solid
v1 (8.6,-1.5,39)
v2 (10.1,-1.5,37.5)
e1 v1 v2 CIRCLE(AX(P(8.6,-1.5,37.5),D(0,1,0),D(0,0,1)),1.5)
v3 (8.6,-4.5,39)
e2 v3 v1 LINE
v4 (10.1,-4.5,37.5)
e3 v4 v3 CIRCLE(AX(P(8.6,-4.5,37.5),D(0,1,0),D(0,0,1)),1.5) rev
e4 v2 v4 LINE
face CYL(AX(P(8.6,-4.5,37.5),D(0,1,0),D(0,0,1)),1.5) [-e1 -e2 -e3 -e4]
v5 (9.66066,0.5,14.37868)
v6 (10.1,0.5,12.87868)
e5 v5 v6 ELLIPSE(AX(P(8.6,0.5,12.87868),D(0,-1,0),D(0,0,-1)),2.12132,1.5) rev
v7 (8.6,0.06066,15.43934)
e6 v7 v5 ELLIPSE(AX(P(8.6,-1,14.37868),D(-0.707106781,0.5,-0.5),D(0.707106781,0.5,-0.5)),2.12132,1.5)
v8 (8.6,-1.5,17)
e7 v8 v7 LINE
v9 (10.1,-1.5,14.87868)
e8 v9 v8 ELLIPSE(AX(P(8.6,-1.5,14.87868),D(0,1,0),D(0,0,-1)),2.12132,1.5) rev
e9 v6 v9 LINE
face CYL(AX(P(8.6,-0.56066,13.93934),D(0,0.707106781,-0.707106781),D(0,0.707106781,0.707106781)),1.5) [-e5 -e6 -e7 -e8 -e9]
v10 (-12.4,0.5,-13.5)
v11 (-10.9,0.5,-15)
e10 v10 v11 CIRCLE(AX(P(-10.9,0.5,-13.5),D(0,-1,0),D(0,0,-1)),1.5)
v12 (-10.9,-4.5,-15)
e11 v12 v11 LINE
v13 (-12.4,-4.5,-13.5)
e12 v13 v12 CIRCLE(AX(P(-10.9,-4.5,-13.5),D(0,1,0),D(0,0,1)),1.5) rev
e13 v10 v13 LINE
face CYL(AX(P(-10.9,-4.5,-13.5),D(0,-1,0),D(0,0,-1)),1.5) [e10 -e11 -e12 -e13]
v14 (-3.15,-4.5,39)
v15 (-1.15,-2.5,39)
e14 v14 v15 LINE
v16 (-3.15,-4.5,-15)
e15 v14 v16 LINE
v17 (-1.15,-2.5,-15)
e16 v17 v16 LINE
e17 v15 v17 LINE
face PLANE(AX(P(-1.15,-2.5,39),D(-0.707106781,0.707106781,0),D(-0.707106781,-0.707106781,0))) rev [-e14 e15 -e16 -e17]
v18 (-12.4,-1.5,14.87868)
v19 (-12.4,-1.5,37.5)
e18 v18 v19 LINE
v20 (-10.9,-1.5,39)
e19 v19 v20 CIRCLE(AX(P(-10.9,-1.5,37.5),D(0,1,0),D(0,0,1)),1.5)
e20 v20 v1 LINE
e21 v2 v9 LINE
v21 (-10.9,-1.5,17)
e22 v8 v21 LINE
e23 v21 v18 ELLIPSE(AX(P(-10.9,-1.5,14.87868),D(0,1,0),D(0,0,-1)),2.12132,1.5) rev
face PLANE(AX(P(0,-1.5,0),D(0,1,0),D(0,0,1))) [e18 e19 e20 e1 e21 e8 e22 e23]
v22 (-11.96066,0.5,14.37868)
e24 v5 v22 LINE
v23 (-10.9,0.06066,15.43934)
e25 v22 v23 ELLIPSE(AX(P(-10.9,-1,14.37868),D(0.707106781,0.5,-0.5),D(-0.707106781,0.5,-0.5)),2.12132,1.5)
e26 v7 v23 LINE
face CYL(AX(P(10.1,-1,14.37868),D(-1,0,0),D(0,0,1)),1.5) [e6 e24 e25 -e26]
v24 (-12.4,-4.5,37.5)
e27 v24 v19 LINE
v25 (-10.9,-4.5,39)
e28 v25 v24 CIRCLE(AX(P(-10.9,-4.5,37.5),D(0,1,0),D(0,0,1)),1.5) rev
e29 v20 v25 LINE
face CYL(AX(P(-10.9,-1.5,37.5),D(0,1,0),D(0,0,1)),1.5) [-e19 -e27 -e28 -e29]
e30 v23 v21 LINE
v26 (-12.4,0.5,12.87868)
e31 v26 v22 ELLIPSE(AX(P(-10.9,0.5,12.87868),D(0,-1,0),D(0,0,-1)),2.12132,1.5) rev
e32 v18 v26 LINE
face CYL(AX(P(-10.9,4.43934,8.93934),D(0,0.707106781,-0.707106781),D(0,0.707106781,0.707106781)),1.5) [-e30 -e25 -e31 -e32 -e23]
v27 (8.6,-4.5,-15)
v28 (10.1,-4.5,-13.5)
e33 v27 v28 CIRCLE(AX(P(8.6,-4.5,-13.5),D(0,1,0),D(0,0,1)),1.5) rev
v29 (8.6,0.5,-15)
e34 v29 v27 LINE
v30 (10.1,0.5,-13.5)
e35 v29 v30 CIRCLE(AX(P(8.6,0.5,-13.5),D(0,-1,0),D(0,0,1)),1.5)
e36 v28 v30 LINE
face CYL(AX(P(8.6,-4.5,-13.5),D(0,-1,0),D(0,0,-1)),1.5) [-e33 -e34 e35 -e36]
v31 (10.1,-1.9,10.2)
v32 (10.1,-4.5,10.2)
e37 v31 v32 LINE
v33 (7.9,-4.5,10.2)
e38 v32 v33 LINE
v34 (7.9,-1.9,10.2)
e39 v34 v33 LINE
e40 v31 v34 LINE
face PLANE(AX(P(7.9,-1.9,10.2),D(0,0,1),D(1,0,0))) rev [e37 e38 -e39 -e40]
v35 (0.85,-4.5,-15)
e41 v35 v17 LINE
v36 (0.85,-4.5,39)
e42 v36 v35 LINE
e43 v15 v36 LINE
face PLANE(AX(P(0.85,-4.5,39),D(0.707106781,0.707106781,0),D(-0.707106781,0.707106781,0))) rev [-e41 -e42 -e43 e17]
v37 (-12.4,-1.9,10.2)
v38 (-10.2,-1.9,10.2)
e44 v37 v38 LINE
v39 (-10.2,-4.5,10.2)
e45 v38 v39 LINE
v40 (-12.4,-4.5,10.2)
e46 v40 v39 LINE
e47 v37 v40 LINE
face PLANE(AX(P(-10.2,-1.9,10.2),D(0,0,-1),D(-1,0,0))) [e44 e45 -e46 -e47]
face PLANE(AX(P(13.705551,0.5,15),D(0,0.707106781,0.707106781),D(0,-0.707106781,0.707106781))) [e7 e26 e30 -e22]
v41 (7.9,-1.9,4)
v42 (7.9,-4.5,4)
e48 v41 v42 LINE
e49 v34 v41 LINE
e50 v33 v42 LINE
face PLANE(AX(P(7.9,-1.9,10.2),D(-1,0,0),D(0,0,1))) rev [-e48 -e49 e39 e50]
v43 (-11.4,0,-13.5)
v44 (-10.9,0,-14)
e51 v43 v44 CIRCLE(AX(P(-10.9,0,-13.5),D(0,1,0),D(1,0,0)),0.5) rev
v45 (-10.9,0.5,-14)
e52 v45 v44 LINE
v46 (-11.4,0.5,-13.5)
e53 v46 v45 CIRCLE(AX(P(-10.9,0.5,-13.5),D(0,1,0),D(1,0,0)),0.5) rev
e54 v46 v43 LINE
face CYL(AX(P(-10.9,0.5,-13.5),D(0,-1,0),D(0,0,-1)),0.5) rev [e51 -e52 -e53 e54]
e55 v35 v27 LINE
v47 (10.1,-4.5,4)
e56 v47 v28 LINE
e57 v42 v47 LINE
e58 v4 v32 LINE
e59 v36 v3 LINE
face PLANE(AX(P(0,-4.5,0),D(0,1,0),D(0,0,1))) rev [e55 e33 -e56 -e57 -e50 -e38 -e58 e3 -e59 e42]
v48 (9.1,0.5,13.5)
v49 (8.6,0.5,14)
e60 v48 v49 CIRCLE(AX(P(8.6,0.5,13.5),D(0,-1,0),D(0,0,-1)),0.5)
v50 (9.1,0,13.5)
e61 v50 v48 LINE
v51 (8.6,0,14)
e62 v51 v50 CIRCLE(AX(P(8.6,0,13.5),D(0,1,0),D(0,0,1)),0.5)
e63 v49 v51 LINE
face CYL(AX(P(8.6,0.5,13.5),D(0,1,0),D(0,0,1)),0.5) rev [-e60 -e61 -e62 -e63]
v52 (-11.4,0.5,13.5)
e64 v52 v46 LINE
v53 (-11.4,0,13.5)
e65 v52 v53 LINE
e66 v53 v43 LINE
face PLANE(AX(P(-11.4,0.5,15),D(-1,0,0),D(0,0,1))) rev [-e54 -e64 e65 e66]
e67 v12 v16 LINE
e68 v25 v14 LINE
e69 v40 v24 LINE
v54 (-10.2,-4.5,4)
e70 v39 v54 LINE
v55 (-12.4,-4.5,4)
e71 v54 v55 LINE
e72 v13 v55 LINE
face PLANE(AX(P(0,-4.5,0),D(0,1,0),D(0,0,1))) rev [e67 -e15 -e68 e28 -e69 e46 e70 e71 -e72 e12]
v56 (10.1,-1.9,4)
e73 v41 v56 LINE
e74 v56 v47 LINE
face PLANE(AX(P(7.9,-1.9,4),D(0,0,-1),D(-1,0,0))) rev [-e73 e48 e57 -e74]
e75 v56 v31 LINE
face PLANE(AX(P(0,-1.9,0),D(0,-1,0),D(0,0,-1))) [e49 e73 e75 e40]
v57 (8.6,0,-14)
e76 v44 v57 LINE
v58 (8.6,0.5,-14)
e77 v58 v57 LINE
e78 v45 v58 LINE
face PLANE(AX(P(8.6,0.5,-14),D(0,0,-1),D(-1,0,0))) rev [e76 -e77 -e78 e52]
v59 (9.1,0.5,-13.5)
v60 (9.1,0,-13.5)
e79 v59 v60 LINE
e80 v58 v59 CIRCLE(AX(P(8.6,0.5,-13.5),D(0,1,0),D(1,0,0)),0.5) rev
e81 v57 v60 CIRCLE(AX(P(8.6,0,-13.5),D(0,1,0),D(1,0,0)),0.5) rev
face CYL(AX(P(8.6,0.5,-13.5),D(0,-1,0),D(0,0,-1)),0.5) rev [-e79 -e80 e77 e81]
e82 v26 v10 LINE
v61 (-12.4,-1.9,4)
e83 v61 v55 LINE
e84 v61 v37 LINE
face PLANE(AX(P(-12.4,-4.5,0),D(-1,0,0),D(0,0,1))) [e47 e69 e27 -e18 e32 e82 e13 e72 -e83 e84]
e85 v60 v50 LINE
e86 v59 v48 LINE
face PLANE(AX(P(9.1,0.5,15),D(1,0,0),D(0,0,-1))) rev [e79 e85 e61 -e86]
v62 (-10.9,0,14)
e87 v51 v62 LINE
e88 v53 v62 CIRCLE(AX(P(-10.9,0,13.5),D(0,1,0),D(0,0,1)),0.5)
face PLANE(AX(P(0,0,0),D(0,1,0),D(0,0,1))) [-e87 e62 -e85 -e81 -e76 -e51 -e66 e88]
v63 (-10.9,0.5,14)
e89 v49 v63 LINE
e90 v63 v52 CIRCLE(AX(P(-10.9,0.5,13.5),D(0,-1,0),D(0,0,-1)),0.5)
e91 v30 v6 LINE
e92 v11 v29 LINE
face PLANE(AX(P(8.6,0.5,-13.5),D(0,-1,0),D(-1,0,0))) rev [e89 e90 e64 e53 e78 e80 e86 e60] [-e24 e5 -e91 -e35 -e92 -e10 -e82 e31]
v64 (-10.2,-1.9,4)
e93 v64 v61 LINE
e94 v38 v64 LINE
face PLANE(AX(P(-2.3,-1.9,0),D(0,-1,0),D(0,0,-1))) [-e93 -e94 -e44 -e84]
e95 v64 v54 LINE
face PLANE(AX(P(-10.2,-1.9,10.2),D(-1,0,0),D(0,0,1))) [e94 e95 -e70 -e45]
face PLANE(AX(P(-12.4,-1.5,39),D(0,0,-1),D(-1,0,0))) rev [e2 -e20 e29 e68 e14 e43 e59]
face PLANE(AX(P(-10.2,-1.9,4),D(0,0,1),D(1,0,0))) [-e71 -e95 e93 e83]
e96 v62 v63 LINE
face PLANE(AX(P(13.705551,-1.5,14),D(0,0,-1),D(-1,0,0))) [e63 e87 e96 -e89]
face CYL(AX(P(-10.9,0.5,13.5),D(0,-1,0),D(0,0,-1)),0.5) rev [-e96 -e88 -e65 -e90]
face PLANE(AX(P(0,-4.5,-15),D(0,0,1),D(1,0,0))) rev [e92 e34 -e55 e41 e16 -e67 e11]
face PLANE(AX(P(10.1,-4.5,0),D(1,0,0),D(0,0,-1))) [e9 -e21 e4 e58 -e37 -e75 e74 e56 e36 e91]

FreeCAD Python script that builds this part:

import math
import FreeCAD as App
import Part
import Sketcher

V = App.Vector
Q = App.Units.Quantity


def edges_at(feature, points):
    """Names of the edges that pass closest to the given points."""
    edges = feature.Shape.Edges
    near = lambda p: min(range(len(edges)), key=lambda i: edges[i].distToShape(Part.Vertex(*p))[0])
    return sorted({f"Edge{near(p) + 1}" for p in points})


def add_polygon(sketch, points):
    """Adds a closed chain of lines whose ends are joined by coincident constraints."""
    first, n = sketch.GeometryCount, len(points)
    for a, b in zip(points, points[1:] + points[:1]):
        sketch.addGeometry(Part.LineSegment(App.Vector(*a, 0), App.Vector(*b, 0)), False)
    for i in range(n):
        sketch.addConstraint(Sketcher.Constraint("Coincident", first + i, 2, first + (i + 1) % n, 1))

doc = App.newDocument("Part")
body = doc.addObject("PartDesign::Body", "Body")

sketch1 = body.newObject("Sketcher::SketchObject", "Sketch")
sketch1.AttachmentSupport = (doc.getObject("XZ_Plane"), [""])
sketch1.MapMode = "FlatFace"
add_polygon(sketch1, [(-12, -15), (-12, 15), (10, 15), (10, -15)])
sketch1.addConstraint([
    Sketcher.Constraint("Vertical", 0),
    Sketcher.Constraint("Horizontal", 1),
    Sketcher.Constraint("Vertical", 2),
    Sketcher.Constraint("Horizontal", 3),
    Sketcher.Constraint("DistanceY", 0, 1, 0, 2, 30.0),
    Sketcher.Constraint("DistanceX", 1, 1, 1, 2, 22.5),
    Sketcher.Constraint("DistanceY", -1, 1, 0, 2, 15.0),
    Sketcher.Constraint("DistanceX", 0, 2, -1, 1, 12.4),
])
pad1 = body.newObject("PartDesign::Pad", "Pad")
pad1.Profile = sketch1
pad1.Length = 4.5

sketch2 = body.newObject("Sketcher::SketchObject", "Sketch001")
sketch2.AttachmentSupport = (doc.getObject("XZ_Plane"), [""])
sketch2.MapMode = "FlatFace"
sketch2.AttachmentOffset = App.Placement(V(0, 0, 4.5), App.Rotation())
add_polygon(sketch2, [(-12, 15), (-12, 39), (10, 39), (10, 15)])
sketch2.addConstraint([
    Sketcher.Constraint("Vertical", 0),
    Sketcher.Constraint("Horizontal", 1),
    Sketcher.Constraint("Vertical", 2),
    Sketcher.Constraint("Horizontal", 3),
    Sketcher.Constraint("DistanceY", 0, 1, 0, 2, 24.0),
    Sketcher.Constraint("DistanceX", 1, 1, 1, 2, 22.5),
    Sketcher.Constraint("DistanceY", -1, 1, 0, 2, 39.0),
    Sketcher.Constraint("DistanceX", 0, 2, -1, 1, 12.4),
])
pad2 = body.newObject("PartDesign::Pad", "Pad001")
pad2.Profile = sketch2
pad2.Length = 3
pad2.Reversed = True
doc.recompute()

fillet = body.newObject("PartDesign::Fillet", "Fillet")
fillet.Base = (pad2, edges_at(pad2, [
    (-12.4, -3, 39),
    (10.1, -3, 39),
    (10.1, -2.25, -15),
    (-12.4, -2.25, -15),
]))
fillet.Radius = 1.5

sketch3 = body.newObject("Sketcher::SketchObject", "Sketch002")
sketch3.AttachmentSupport = (doc.getObject("XZ_Plane"), [""])
sketch3.MapMode = "FlatFace"
sketch3.AttachmentOffset = App.Placement(V(0, 0, 4.5), App.Rotation())
add_polygon(sketch3, [(7.9, 10.2), (7.9, 4), (10.1, 4), (10.1, 10.2)])
sketch3.addConstraint([
    Sketcher.Constraint("Vertical", 0),
    Sketcher.Constraint("Horizontal", 1),
    Sketcher.Constraint("Vertical", 2),
    Sketcher.Constraint("Horizontal", 3),
    Sketcher.Constraint("DistanceX", 1, 1, 1, 2, 2.2),
    Sketcher.Constraint("DistanceY", 0, 2, 0, 1, 6.2),
    Sketcher.Constraint("DistanceY", -1, 1, 0, 2, 4.0),
    Sketcher.Constraint("DistanceX", -1, 1, 0, 2, 7.9),
])
pocket1 = body.newObject("PartDesign::Pocket", "Pocket")
pocket1.Profile = sketch3
pocket1.Length = 2.6
doc.recompute()

datumplane = body.newObject("PartDesign::Plane", "DatumPlane")
datumplane.AttachmentSupport = (doc.getObject("YZ_Plane"), [""])
datumplane.MapMode = "FlatFace"
datumplane.AttachmentOffset = App.Placement(V(0, 0, -1.15), App.Rotation())
mirrored = body.newObject("PartDesign::Mirrored", "Mirrored")
mirrored.Originals = [pocket1]
mirrored.MirrorPlane = (datumplane, [""])
body.Tip = mirrored

sketch4 = body.newObject("Sketcher::SketchObject", "Sketch003")
sketch4.AttachmentSupport = (doc.getObject("XZ_Plane"), [""])
sketch4.MapMode = "FlatFace"
sketch4.addGeometry([
    Part.LineSegment(V(-12.4, -13.5, 0), V(-12.4, 15, 0)),
    Part.LineSegment(V(-12.4, 15, 0), V(-11.4, 15, 0)),
    Part.LineSegment(V(-11.4, 15, 0), V(-11.4, -13.5, 0)),
    Part.ArcOfCircle(Part.Circle(V(-10.9, -13.5, 0), V(0, 0, 1), 0.5), math.radians(180), math.radians(270)),
    Part.LineSegment(V(-10.9, -14, 0), V(8.6, -14, 0)),
    Part.ArcOfCircle(Part.Circle(V(8.6, -13.5, 0), V(0, 0, 1), 0.5), math.radians(-90), math.radians(0)),
    Part.LineSegment(V(9.1, -13.5, 0), V(9.1, 15, 0)),
    Part.LineSegment(V(9.1, 15, 0), V(10.1, 15, 0)),
    Part.LineSegment(V(10.1, 15, 0), V(10.1, -13.5, 0)),
    Part.ArcOfCircle(Part.Circle(V(8.6, -13.5, 0), V(0, 0, 1), 1.5), math.radians(-90), math.radians(0)),
    Part.LineSegment(V(8.6, -15, 0), V(-10.9, -15, 0)),
    Part.ArcOfCircle(Part.Circle(V(-10.9, -13.5, 0), V(0, 0, 1), 1.5), math.radians(180), math.radians(270)),
], False)
sketch4.addConstraint([
    Sketcher.Constraint("Coincident", 0, 2, 1, 1),
    Sketcher.Constraint("Coincident", 1, 2, 2, 1),
    Sketcher.Constraint("Tangent", 2, 2, 3, 1),
    Sketcher.Constraint("Tangent", 3, 2, 4, 1),
    Sketcher.Constraint("Tangent", 4, 2, 5, 1),
    Sketcher.Constraint("Tangent", 5, 2, 6, 1),
    Sketcher.Constraint("Coincident", 6, 2, 7, 1),
    Sketcher.Constraint("Coincident", 7, 2, 8, 1),
    Sketcher.Constraint("Tangent", 8, 2, 9, 2),
    Sketcher.Constraint("Tangent", 9, 1, 10, 1),
    Sketcher.Constraint("Tangent", 10, 2, 11, 2),
    Sketcher.Constraint("Tangent", 11, 1, 0, 1),
    Sketcher.Constraint("Vertical", 0),
    Sketcher.Constraint("Horizontal", 1),
    Sketcher.Constraint("Vertical", 2),
    Sketcher.Constraint("Horizontal", 4),
    Sketcher.Constraint("Vertical", 6),
    Sketcher.Constraint("Horizontal", 7),
    Sketcher.Constraint("Vertical", 8),
    Sketcher.Constraint("Horizontal", 10),
    Sketcher.Constraint("Coincident", 9, 3, 5, 3),
    Sketcher.Constraint("Coincident", 11, 3, 3, 3),
    Sketcher.Constraint("Equal", 3, 5),
    Sketcher.Constraint("Horizontal", 1, 2, 6, 2),
    Sketcher.Constraint("Radius", 3, 0.5),
    Sketcher.Constraint("Radius", 9, 1.5),
    Sketcher.Constraint("DistanceX", 4, 1, 4, 2, 19.5),
    Sketcher.Constraint("DistanceY", 0, 1, 0, 2, 28.5),
    Sketcher.Constraint("DistanceY", -1, 1, 0, 2, 15.0),
    Sketcher.Constraint("DistanceX", 3, 3, -1, 1, 10.9),
])
pad3 = body.newObject("PartDesign::Pad", "Pad002")
pad3.Profile = sketch4
pad3.Length = 0.5
pad3.Reversed = True

sketch5 = body.newObject("Sketcher::SketchObject", "Sketch004")
sketch5.AttachmentSupport = (doc.getObject("YZ_Plane"), [""])
sketch5.MapMode = "FlatFace"
sketch5.AttachmentOffset = App.Placement(V(0, 0, -12.4), App.Rotation())
add_polygon(sketch5, [(-1.5, 17), (0.5, 15), (0.5, 14), (-1.5, 14)])
sketch5.addConstraint([
    Sketcher.Constraint("Vertical", 1),
    Sketcher.Constraint("Horizontal", 2),
    Sketcher.Constraint("Vertical", 3),
    Sketcher.Constraint("DistanceX", 2, 2, 2, 1, 2.0),
    Sketcher.Constraint("DistanceY", 1, 2, 1, 1, 1.0),
    Sketcher.Constraint("DistanceY", 3, 1, 3, 2, 3.0),
    Sketcher.Constraint("DistanceY", -1, 1, 0, 2, 15.0),
    Sketcher.Constraint("DistanceX", -1, 1, 0, 2, 0.5),
])
pad4 = body.newObject("PartDesign::Pad", "Pad003")
pad4.Profile = sketch5
pad4.Length = 22.5
doc.recompute()

fillet2 = body.newObject("PartDesign::Fillet", "Fillet001")
fillet2.Base = (pad4, edges_at(pad4, [(-12.4, -0.5, 16), (10.1, -0.5, 16)]))
fillet2.Radius = 1.5
doc.recompute()

fillet3 = body.newObject("PartDesign::Fillet", "Fillet002")
fillet3.Base = (fillet2, edges_at(fillet2, [(9.1, 0.25, 14), (-11.4, 0.25, 14)]))
fillet3.Radius = 0.5

sketch6 = body.newObject("Sketcher::SketchObject", "Sketch005")
sketch6.AttachmentSupport = (doc.getObject("YZ_Plane"), [""])
sketch6.MapMode = "FlatFace"
sketch6.AttachmentOffset = App.Placement(V(0, 0, -12.4), App.Rotation())
sketch6.addGeometry([
    Part.LineSegment(V(0.5, 12.9, 0), V(0.5, 14.4, 0)),
    Part.ArcOfCircle(Part.Circle(V(-1, 14.4, 0), V(0, 0, 1), 1.5), math.radians(0), math.radians(45)),
    Part.LineSegment(V(0.1, 15.4, 0), V(-1.5, 17, 0)),
    Part.LineSegment(V(-1.5, 17, 0), V(-1.5, 17.9, 0)),
    Part.LineSegment(V(-1.5, 17.9, 0), V(1.2, 15.2, 0)),
    Part.LineSegment(V(1.2, 15.2, 0), V(1.1, 12.9, 0)),
    Part.LineSegment(V(1.1, 12.9, 0), V(0.5, 12.9, 0)),
], False)
sketch6.addConstraint([
    Sketcher.Constraint("Tangent", 0, 2, 1, 1),
    Sketcher.Constraint("Tangent", 1, 2, 2, 1),
    Sketcher.Constraint("Coincident", 2, 2, 3, 1),
    Sketcher.Constraint("Coincident", 3, 2, 4, 1),
    Sketcher.Constraint("Coincident", 4, 2, 5, 1),
    Sketcher.Constraint("Coincident", 5, 2, 6, 1),
    Sketcher.Constraint("Coincident", 6, 2, 0, 1),
    Sketcher.Constraint("Vertical", 0),
    Sketcher.Constraint("Vertical", 3),
    Sketcher.Constraint("Horizontal", 6),
    Sketcher.Constraint("Parallel", 2, 4),
    Sketcher.Constraint("Radius", 1, 1.5),
    Sketcher.Constraint("Angle", 2, Q("135 deg")),
    Sketcher.Constraint("DistanceY", 0, 1, 0, 2, 1.5),
    Sketcher.Constraint("DistanceX", 1, 3, -1, 1, 1.0),
    Sketcher.Constraint("DistanceY", -1, 1, 2, 2, 17.0),
    Sketcher.Constraint("DistanceX", 2, 2, 0, 2, 2.0),
    Sketcher.Constraint("DistanceY", 0, 2, 4, 2, 0.8025),
    Sketcher.Constraint("Distance", 4, 3.877908),
    Sketcher.Constraint("Distance", 5, 2.305609),
])
pocket2 = body.newObject("PartDesign::Pocket", "Pocket001")
pocket2.Profile = sketch6
pocket2.Type = "ThroughAll"
pocket2.Reversed = True

sketch7 = body.newObject("Sketcher::SketchObject", "Sketch006")
sketch7.AttachmentSupport = (doc.getObject("XY_Plane"), [""])
sketch7.MapMode = "FlatFace"
sketch7.AttachmentOffset = App.Placement(V(0, 0, -15), App.Rotation())
add_polygon(sketch7, [(0.8, -4.5), (-3.1, -4.5), (-1.1, -2.5)])
sketch7.addConstraint([
    Sketcher.Constraint("Horizontal", 0),
    Sketcher.Constraint("Perpendicular", 1, 2),
    Sketcher.Constraint("Equal", 1, 2),
    Sketcher.Constraint("DistanceX", 0, 2, 0, 1, 4.0),
    Sketcher.Constraint("DistanceY", 0, 2, -1, 1, 4.5),
    Sketcher.Constraint("DistanceX", 0, 2, -1, 1, 3.15),
])
pocket3 = body.newObject("PartDesign::Pocket", "Pocket002")
pocket3.Profile = sketch7
pocket3.Type = "ThroughAll"
pocket3.Midplane = True

doc.recompute()
